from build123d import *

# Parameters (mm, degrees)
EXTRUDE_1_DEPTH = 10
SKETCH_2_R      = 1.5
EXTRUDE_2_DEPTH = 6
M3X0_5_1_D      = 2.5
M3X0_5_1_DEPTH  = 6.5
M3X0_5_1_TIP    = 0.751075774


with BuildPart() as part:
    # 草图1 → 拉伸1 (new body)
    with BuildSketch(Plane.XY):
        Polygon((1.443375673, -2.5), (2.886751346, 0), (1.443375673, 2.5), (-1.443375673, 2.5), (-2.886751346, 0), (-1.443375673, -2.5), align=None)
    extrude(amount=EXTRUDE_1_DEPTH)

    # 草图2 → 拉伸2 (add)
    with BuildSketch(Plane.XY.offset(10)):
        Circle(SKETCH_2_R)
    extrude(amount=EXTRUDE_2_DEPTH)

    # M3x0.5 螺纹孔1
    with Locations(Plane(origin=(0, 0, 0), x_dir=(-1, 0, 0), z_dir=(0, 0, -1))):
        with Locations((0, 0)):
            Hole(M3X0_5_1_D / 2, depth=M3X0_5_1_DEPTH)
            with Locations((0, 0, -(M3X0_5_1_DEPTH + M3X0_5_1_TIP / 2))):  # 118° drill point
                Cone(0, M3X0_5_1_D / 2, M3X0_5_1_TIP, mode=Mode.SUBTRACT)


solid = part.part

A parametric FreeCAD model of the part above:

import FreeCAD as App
import Part
import Sketcher
from FreeCAD import Vector
Q = App.Units.Quantity


def add_polygon(sketch, points):
    """Adds a closed chain of lines whose ends are joined by coincident constraints."""
    first, n = sketch.GeometryCount, len(points)
    for a, b in zip(points, points[1:] + points[:1]):
        sketch.addGeometry(Part.LineSegment(App.Vector(*a, 0), App.Vector(*b, 0)), False)
    for i in range(n):
        sketch.addConstraint(Sketcher.Constraint("Coincident", first + i, 2, first + (i + 1) % n, 1))

doc = App.newDocument("Part")
params = doc.addObject("Spreadsheet::Sheet", "Params")
for row, (alias, value) in enumerate([
    ("pad1_length", "10 mm"),
    ("sketch2_diameter", "3 mm"),
    ("pad2_length", "6 mm"),
    ("sketch3_diameter", "2.5 mm"),
    ("hole_diameter", "2.5 mm"),
    ("hole_depth", "6.5 mm"),
], start=1):
    params.set(f"A{row}", alias)
    params.set(f"B{row}", "=" + value)
    params.setAlias(f"B{row}", alias)

body = doc.addObject("PartDesign::Body", "Body")

# Sketch on XY plane
sketch1 = doc.addObject("Sketcher::SketchObject", "Sketch")
body.addObject(sketch1)
sketch1.AttachmentSupport = (doc.XY_Plane, [""])
sketch1.MapMode = "FlatFace"
add_polygon(sketch1, [(1.4, -2.5), (2.9, 0), (1.4, 2.5), (-1.4, 2.5), (-2.9, 0), (-1.4, -2.5)])  # lines 0-5
sketch1.addConstraint([
    Sketcher.Constraint("Horizontal", 2),
    Sketcher.Constraint("Horizontal", 5),
    Sketcher.Constraint("Symmetric", 0, 2, 3, 2, -1, 1),
    Sketcher.Constraint("Symmetric", 1, 2, 4, 2, -1, 1),
    Sketcher.Constraint("PointOnObject", 0, 2, -1),
    Sketcher.Constraint("Parallel", 0, 3),
    Sketcher.Constraint("Vertical", 2, 2, 4, 2),
    Sketcher.Constraint("Angle", 0, Q("60 deg")),
    Sketcher.Constraint("DistanceY", 4, 2, 2, 2, Q("5 mm")),
    Sketcher.Constraint("DistanceX", 2, 2, 2, 1, Q("2.886751 mm")),
])
pad1 = doc.addObject("PartDesign::Pad", "Pad")
body.addObject(pad1)
pad1.Profile = sketch1
pad1.setExpression("Length", "Params.pad1_length")

# Sketch on XY plane
sketch2 = doc.addObject("Sketcher::SketchObject", "Sketch001")
body.addObject(sketch2)
sketch2.AttachmentSupport = (doc.XY_Plane, [""])
sketch2.MapMode = "FlatFace"
sketch2.AttachmentOffset = App.Placement(Vector(0, 0, 10), App.Rotation())
sketch2.addGeometry(Part.Circle(Vector(0, 0, 0), Vector(0, 0, 1), 1.5), False)
sketch2.addConstraint([
    Sketcher.Constraint("Coincident", 0, 3, -1, 1),
    Sketcher.Constraint("Diameter", 0, Q("3 mm")),
])
sketch2.setExpression("Constraints[1]", "Params.sketch2_diameter")
pad2 = doc.addObject("PartDesign::Pad", "Pad001")
body.addObject(pad2)
pad2.Profile = sketch2
pad2.setExpression("Length", "Params.pad2_length")

# Sketch on XY plane
sketch3 = doc.addObject("Sketcher::SketchObject", "Sketch002")
body.addObject(sketch3)
sketch3.AttachmentSupport = (doc.XY_Plane, [""])
sketch3.MapMode = "FlatFace"
sketch3.addGeometry(Part.Circle(Vector(0, 0, 0), Vector(0, 0, 1), 1.2), False)
sketch3.addConstraint([
    Sketcher.Constraint("Coincident", 0, 3, -1, 1),
    Sketcher.Constraint("Diameter", 0, Q("2.5 mm")),
])
sketch3.setExpression("Constraints[1]", "Params.sketch3_diameter")
doc.recompute()
hole = doc.addObject("PartDesign::Hole", "Hole")
body.addObject(hole)
hole.Profile = sketch3
hole.ThreadType = "None"
hole.setExpression("Diameter", "Params.hole_diameter")
hole.DepthType = "Dimension"
hole.setExpression("Depth", "Params.hole_depth")
hole.DrillPoint = "Angled"
hole.DrillPointAngle = 118
hole.Reversed = True

doc.recompute()
